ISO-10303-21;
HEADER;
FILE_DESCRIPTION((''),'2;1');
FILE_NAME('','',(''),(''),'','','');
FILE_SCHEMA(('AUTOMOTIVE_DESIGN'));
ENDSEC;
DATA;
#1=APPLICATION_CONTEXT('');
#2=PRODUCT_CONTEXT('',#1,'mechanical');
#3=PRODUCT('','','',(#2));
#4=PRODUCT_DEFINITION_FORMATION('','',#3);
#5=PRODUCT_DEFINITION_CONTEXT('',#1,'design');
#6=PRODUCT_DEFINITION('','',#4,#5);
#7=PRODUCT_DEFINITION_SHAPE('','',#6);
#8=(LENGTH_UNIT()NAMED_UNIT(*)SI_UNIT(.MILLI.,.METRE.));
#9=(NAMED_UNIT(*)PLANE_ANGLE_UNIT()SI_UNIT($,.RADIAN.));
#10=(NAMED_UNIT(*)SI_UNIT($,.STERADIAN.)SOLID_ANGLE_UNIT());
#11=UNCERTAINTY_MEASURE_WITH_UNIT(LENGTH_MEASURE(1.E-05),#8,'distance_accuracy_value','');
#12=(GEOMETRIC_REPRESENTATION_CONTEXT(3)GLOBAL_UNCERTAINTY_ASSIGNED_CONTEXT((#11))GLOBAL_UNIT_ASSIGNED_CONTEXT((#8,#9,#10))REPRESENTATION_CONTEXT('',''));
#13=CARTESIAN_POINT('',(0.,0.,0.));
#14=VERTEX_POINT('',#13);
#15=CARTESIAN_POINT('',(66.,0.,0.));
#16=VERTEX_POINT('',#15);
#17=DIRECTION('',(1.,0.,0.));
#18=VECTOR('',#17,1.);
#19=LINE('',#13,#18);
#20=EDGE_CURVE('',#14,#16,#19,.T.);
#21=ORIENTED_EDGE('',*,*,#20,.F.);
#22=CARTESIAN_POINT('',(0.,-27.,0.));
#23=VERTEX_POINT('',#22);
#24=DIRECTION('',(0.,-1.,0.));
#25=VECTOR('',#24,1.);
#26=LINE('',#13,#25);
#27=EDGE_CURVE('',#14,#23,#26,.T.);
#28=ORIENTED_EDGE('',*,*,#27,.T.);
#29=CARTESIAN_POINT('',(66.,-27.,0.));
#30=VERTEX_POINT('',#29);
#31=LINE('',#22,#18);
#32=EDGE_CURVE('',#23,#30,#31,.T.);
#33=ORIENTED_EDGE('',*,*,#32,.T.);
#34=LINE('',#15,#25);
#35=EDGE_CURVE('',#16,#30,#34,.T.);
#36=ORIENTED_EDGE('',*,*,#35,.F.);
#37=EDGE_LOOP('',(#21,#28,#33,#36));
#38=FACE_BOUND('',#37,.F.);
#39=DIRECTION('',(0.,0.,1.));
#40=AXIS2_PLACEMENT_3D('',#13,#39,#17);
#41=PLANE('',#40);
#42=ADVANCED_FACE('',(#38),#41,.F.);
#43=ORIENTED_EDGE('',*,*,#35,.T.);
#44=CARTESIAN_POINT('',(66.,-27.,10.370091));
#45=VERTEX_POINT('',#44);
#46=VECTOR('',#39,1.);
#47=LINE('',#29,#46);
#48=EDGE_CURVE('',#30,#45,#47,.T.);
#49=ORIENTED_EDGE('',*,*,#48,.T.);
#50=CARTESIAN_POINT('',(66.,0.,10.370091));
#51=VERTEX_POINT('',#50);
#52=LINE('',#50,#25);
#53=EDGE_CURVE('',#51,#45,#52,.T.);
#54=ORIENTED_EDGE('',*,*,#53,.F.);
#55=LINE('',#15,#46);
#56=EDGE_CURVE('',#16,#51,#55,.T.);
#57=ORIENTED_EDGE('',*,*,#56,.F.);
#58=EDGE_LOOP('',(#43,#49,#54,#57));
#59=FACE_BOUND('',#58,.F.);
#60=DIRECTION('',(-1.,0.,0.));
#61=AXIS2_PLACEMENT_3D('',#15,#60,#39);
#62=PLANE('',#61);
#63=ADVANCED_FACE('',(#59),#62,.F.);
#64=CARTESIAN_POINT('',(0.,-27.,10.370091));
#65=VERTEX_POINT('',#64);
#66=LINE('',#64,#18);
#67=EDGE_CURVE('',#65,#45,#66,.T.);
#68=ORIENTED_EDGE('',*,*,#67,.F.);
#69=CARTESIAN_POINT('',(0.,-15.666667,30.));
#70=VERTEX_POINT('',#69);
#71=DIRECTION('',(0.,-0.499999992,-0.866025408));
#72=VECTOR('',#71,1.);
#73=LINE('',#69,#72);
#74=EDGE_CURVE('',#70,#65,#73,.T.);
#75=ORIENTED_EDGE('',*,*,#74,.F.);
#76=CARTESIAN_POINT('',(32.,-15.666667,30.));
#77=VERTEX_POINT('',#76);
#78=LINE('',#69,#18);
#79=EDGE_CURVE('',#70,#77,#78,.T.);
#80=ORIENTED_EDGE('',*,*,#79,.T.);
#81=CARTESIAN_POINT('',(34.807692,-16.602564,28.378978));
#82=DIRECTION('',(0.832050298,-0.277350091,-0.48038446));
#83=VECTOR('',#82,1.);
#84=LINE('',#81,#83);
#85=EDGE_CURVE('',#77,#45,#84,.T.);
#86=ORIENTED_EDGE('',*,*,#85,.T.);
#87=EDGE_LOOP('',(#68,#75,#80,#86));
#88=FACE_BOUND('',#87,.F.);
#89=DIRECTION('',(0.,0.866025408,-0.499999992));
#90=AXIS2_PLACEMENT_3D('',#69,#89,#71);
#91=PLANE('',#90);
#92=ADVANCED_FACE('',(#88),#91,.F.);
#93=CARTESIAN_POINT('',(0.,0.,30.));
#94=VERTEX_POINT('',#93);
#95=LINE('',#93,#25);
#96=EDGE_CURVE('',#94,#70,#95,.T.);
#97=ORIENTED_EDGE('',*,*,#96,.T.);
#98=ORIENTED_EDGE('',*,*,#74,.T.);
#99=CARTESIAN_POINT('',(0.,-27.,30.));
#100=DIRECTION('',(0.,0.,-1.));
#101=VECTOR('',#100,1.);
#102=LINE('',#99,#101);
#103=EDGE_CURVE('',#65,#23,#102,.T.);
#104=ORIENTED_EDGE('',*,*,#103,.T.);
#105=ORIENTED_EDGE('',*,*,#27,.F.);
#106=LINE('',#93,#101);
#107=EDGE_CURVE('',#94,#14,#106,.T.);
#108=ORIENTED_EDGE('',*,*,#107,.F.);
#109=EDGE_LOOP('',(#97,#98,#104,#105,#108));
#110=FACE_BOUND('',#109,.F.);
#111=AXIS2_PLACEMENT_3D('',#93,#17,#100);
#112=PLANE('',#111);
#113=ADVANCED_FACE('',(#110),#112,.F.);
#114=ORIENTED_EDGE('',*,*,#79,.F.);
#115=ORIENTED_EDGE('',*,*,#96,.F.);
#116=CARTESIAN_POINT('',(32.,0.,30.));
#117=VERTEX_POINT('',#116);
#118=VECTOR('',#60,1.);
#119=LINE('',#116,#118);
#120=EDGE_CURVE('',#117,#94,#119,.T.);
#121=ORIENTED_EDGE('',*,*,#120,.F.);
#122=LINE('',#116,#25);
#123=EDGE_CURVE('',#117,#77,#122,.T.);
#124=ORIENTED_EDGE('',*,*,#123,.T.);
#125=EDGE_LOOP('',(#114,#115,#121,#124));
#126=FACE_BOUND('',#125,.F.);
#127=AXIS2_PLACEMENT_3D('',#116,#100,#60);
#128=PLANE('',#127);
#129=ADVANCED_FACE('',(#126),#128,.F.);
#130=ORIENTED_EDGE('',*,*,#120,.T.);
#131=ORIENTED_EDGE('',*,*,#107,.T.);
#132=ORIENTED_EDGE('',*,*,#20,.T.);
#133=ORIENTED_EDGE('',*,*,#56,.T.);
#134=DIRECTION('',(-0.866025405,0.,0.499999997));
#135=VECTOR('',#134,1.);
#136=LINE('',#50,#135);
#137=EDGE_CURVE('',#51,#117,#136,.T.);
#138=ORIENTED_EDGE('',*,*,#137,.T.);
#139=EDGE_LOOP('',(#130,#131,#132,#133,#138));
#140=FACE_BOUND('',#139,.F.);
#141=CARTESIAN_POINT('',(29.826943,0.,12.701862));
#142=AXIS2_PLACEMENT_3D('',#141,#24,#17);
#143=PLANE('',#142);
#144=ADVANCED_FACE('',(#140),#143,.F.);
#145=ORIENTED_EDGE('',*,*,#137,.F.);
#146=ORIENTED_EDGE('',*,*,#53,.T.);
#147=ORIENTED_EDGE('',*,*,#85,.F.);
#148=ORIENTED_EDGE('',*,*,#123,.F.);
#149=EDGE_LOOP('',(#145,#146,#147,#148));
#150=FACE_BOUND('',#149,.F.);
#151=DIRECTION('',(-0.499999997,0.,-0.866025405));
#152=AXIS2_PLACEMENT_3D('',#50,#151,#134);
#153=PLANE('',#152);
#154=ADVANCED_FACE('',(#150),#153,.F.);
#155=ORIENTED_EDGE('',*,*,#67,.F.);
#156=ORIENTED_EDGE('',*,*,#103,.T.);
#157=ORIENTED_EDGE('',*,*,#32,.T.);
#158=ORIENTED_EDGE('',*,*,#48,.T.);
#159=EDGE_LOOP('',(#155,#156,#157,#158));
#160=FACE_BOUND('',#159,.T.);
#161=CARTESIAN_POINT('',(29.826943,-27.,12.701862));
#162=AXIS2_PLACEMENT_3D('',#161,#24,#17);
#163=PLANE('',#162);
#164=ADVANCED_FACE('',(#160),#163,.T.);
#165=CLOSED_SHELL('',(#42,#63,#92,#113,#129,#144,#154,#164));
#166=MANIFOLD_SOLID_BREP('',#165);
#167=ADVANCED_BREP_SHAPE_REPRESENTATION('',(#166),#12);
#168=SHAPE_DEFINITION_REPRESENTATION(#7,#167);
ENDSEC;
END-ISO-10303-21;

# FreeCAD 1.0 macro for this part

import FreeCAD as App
import Part
import Sketcher
from FreeCAD import Vector
Q = App.Units.Quantity

doc = App.newDocument("Part")
body = doc.addObject("PartDesign::Body", "Body")

# Sketch on XZ plane
sketch1 = body.newObject("Sketcher::SketchObject", "Sketch")
sketch1.AttachmentSupport = (doc.getObject("XZ_Plane"), [""])
sketch1.MapMode = "FlatFace"
sketch1.addGeometry([
    Part.LineSegment(Vector(0, 30, 0), Vector(0, 0, 0)),  # 0
    Part.LineSegment(Vector(0, 0, 0), Vector(66, 0, 0)),  # 1
    Part.LineSegment(Vector(66, 0, 0), Vector(66, 10, 0)),  # 2
    Part.LineSegment(Vector(66, 10, 0), Vector(32, 30, 0)),  # 3
    Part.LineSegment(Vector(32, 30, 0), Vector(0, 30, 0)),  # 4
], False)
sketch1.addConstraint([
    Sketcher.Constraint("Coincident", 0, 2, 1, 1),
    Sketcher.Constraint("Coincident", 1, 2, 2, 1),
    Sketcher.Constraint("Coincident", 2, 2, 3, 1),
    Sketcher.Constraint("Coincident", 3, 2, 4, 1),
    Sketcher.Constraint("Coincident", 4, 2, 0, 1),
    Sketcher.Constraint("Vertical", 0),
    Sketcher.Constraint("Horizontal", 1),
    Sketcher.Constraint("Vertical", 2),
    Sketcher.Constraint("Horizontal", 4),
    Sketcher.Constraint("Coincident", 0, 2, -1, 1),
    Sketcher.Constraint("DistanceX", 1, 1, 1, 2, 66.0),
    Sketcher.Constraint("DistanceX", 4, 2, 4, 1, 32.0),
    Sketcher.Constraint("DistanceY", 0, 2, 0, 1, 30.0),
    Sketcher.Constraint("Angle", 3, Q("150 deg")),
])
pad1 = body.newObject("PartDesign::Pad", "Pad")
pad1.Profile = sketch1
pad1.Length = 27

# Sketch on YZ plane
sketch2 = body.newObject("Sketcher::SketchObject", "Sketch001")
sketch2.AttachmentSupport = (doc.getObject("YZ_Plane"), [""])
sketch2.MapMode = "FlatFace"
sketch2.addGeometry([
    Part.LineSegment(Vector(-16, 30, 0), Vector(-27, 10, 0)),
    Part.LineSegment(Vector(-27, 10, 0), Vector(-27, 30, 0)),
    Part.LineSegment(Vector(-27, 30, 0), Vector(-16, 30, 0)),
], False)
sketch2.addConstraint([
    Sketcher.Constraint("Coincident", 0, 2, 1, 1),
    Sketcher.Constraint("Coincident", 1, 2, 2, 1),
    Sketcher.Constraint("Coincident", 2, 2, 0, 1),
    Sketcher.Constraint("Vertical", 1),
    Sketcher.Constraint("Horizontal", 2),
    Sketcher.Constraint("Angle", 0, Q("-119.999999 deg")),
    Sketcher.Constraint("DistanceX", 0, 2, -1, 1, 27.0),
    Sketcher.Constraint("DistanceY", -1, 1, 1, 2, 30.0),
    Sketcher.Constraint("DistanceY", 1, 1, 1, 2, 19.629909),
])
pocket1 = body.newObject("PartDesign::Pocket", "Pocket")
pocket1.Profile = sketch2
pocket1.Type = "ThroughAll"
pocket1.Reversed = True

doc.recompute()
